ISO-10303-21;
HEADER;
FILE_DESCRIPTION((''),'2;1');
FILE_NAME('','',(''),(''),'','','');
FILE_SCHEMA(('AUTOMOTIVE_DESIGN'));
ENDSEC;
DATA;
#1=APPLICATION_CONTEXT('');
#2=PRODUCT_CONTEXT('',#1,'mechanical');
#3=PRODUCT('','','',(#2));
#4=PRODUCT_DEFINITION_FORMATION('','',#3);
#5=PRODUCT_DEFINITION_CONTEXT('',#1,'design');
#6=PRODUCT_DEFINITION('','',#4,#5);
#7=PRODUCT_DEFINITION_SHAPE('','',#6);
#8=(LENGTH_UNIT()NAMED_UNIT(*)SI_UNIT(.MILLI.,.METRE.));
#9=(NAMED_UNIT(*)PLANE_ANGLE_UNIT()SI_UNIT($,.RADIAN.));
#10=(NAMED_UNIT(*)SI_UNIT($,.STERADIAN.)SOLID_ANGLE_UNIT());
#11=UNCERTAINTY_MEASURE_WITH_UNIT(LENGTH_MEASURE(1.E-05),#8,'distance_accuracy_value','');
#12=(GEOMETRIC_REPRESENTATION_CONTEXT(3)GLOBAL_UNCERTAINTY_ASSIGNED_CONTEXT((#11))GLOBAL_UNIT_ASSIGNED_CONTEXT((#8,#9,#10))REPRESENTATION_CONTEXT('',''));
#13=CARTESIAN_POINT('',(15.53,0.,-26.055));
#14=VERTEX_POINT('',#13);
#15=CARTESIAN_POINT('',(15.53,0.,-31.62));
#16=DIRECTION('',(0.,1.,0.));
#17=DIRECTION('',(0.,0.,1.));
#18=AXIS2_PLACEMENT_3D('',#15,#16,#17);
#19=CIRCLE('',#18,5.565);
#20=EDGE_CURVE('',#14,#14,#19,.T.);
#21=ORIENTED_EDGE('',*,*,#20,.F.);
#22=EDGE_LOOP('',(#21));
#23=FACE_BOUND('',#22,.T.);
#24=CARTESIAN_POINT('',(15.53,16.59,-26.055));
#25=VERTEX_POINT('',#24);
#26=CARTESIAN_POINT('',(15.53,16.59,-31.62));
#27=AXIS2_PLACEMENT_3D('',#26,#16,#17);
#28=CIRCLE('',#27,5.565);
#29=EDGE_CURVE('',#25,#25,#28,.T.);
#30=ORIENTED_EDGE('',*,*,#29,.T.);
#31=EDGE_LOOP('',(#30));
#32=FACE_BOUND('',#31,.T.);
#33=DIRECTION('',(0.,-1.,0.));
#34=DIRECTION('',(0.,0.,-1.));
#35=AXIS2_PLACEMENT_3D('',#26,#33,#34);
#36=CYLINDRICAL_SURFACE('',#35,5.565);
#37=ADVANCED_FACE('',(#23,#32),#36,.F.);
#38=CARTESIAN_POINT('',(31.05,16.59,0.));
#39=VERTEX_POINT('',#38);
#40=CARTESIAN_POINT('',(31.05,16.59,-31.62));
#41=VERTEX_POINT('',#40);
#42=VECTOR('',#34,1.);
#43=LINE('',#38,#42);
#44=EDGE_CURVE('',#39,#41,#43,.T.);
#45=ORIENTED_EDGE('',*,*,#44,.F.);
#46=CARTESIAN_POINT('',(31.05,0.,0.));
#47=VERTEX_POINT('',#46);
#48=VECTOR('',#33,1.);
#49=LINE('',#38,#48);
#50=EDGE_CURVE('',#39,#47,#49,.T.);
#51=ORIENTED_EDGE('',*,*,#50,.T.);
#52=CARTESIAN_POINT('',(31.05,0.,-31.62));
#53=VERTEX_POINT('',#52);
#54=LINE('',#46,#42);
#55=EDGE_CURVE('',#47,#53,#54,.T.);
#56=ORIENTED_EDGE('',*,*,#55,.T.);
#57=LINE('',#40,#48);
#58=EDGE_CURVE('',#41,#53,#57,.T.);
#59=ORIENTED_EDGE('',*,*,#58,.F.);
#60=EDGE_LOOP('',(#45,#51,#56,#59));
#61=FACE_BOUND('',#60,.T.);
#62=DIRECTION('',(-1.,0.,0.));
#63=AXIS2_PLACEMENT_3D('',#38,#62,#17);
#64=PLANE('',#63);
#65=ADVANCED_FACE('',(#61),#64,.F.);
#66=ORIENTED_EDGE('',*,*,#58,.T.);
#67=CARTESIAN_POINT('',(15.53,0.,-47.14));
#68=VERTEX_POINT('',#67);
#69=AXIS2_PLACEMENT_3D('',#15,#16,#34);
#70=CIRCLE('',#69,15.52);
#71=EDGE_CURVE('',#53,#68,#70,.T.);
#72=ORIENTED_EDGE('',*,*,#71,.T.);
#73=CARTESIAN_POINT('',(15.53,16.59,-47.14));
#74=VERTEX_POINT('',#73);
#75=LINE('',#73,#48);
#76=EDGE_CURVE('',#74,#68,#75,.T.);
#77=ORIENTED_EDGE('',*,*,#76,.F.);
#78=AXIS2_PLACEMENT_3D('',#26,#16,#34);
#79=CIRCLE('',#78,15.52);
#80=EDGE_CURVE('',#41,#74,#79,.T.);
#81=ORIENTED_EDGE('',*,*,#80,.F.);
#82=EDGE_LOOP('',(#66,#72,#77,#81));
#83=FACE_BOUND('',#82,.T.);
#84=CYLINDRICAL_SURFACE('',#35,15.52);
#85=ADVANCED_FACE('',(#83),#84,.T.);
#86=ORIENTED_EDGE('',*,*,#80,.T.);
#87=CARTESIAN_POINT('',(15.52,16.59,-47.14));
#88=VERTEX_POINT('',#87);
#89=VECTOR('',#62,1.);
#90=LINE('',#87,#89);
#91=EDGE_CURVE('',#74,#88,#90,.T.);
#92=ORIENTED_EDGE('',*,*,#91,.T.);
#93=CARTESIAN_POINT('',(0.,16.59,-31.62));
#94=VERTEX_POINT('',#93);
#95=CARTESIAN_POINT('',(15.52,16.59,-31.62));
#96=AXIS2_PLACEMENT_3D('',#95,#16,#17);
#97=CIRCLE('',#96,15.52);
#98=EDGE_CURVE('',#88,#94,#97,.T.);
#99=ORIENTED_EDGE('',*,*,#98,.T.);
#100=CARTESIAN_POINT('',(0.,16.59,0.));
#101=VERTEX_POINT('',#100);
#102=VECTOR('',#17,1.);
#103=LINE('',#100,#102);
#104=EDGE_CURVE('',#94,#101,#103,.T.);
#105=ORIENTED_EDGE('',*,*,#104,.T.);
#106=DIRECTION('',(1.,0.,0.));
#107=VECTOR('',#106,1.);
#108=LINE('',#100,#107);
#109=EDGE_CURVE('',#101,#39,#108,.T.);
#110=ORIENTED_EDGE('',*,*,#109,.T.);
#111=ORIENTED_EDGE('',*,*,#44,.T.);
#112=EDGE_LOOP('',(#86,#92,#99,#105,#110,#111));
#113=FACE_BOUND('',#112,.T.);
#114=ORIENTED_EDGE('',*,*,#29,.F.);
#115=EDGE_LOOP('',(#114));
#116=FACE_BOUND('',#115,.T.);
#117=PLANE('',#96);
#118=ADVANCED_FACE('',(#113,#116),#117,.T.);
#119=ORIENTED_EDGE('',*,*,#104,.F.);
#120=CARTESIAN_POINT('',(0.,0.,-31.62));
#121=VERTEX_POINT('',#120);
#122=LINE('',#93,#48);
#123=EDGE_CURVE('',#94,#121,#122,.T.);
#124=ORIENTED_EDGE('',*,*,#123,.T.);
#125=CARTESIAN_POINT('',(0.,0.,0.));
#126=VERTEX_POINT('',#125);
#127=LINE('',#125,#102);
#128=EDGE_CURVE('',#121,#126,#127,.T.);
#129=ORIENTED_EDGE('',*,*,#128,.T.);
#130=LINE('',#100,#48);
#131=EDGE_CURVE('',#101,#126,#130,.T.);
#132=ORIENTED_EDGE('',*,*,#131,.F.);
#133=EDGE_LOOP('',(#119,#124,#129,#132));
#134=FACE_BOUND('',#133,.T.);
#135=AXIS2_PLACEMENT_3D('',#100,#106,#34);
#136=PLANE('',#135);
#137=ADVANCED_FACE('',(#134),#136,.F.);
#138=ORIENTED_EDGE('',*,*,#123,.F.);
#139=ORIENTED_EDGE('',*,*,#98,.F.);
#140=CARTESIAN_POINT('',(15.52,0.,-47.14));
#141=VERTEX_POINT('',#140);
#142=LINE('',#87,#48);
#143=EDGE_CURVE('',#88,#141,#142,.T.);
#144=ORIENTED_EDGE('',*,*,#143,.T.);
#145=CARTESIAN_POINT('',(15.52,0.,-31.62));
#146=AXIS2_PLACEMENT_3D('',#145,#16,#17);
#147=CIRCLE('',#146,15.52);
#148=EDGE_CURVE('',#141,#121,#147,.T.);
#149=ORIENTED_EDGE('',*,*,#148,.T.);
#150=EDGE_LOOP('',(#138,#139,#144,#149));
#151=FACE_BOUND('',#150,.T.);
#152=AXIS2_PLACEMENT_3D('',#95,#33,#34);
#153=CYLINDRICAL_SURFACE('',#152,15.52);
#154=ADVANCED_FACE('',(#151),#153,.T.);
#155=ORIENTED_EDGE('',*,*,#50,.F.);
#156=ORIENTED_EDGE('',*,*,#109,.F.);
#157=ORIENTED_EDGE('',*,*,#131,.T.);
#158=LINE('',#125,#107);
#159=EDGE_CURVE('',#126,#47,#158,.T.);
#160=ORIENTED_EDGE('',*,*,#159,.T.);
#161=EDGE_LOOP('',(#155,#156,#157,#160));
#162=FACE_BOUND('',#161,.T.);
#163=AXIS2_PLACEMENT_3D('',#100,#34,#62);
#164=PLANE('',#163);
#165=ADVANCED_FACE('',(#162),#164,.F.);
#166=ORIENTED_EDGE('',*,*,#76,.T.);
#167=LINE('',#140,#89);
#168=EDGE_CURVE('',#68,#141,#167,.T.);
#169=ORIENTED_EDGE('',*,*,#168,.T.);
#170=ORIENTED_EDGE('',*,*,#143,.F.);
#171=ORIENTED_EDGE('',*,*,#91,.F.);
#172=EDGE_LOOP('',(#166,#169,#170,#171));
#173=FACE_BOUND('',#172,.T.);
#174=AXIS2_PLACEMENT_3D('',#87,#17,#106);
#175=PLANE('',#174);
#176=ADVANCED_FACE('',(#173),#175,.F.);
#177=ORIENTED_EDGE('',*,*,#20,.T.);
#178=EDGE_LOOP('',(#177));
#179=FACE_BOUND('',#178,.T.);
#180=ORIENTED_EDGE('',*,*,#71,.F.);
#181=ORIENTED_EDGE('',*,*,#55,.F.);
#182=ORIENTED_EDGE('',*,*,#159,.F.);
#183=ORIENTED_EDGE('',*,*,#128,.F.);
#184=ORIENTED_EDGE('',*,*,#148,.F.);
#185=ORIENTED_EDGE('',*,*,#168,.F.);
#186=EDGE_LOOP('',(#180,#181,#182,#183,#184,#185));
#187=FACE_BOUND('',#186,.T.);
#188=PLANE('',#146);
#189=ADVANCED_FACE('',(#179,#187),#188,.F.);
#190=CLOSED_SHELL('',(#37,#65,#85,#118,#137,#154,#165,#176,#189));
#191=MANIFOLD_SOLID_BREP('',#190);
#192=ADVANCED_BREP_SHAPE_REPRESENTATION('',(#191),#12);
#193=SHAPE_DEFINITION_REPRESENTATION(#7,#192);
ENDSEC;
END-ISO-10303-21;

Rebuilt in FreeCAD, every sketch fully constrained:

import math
import FreeCAD as App
import Part
import Sketcher
Q = App.Units.Quantity

doc = App.newDocument("Part")
body = doc.addObject("PartDesign::Body", "Body")

sketch1 = doc.addObject("Sketcher::SketchObject", "Sketch")
body.addObject(sketch1)
sketch1.AttachmentSupport = (doc.XZ_Plane, [""])
sketch1.MapMode = "FlatFace"
sketch1.addGeometry([
    Part.LineSegment(App.Vector(0, 0, 0), App.Vector(31.05, 0, 0)),
    Part.LineSegment(App.Vector(31.05, 0, 0), App.Vector(31.05, -31.62, 0)),
    Part.ArcOfCircle(Part.Circle(App.Vector(15.53, -31.62, 0), App.Vector(0, 0, 1), 15.52), math.radians(-90), math.radians(0)),
    Part.LineSegment(App.Vector(15.53, -47.14, 0), App.Vector(15.52, -47.14, 0)),
    Part.ArcOfCircle(Part.Circle(App.Vector(15.52, -31.62, 0), App.Vector(0, 0, 1), 15.52), math.radians(180), math.radians(270)),
    Part.LineSegment(App.Vector(0, -31.62, 0), App.Vector(0, 0, 0)),
    Part.Circle(App.Vector(15.53, -31.62, 0), App.Vector(0, 0, 1), 5.565),
], False)
sketch1.addConstraint([
    Sketcher.Constraint("Coincident", 0, 2, 1, 1),
    Sketcher.Constraint("Tangent", 1, 2, 2, 2),
    Sketcher.Constraint("Tangent", 2, 1, 3, 1),
    Sketcher.Constraint("Coincident", 3, 2, 4, 2),
    Sketcher.Constraint("Tangent", 4, 1, 5, 1),
    Sketcher.Constraint("Coincident", 5, 2, 0, 1),
    Sketcher.Constraint("Horizontal", 0),
    Sketcher.Constraint("Vertical", 1),
    Sketcher.Constraint("Vertical", 5),
    Sketcher.Constraint("Coincident", 5, 2, -1, 1),
    Sketcher.Constraint("Coincident", 6, 3, 2, 3),
    Sketcher.Constraint("Equal", 2, 4),
    Sketcher.Constraint("Vertical", 6, 3, 2, 1),
    Sketcher.Constraint("Vertical", 4, 3, 3, 2),
    Sketcher.Constraint("Diameter", 6, Q("11.13 mm")),
    Sketcher.Constraint("Radius", 2, Q("15.52 mm")),
    Sketcher.Constraint("DistanceX", 0, 1, 0, 2, Q("31.05 mm")),
    Sketcher.Constraint("DistanceY", 1, 2, 1, 1, Q("31.62 mm")),
])
pad1 = doc.addObject("PartDesign::Pad", "Pad")
body.addObject(pad1)
pad1.Profile = sketch1
pad1.Length = 16.59
pad1.Reversed = True

doc.recompute()
